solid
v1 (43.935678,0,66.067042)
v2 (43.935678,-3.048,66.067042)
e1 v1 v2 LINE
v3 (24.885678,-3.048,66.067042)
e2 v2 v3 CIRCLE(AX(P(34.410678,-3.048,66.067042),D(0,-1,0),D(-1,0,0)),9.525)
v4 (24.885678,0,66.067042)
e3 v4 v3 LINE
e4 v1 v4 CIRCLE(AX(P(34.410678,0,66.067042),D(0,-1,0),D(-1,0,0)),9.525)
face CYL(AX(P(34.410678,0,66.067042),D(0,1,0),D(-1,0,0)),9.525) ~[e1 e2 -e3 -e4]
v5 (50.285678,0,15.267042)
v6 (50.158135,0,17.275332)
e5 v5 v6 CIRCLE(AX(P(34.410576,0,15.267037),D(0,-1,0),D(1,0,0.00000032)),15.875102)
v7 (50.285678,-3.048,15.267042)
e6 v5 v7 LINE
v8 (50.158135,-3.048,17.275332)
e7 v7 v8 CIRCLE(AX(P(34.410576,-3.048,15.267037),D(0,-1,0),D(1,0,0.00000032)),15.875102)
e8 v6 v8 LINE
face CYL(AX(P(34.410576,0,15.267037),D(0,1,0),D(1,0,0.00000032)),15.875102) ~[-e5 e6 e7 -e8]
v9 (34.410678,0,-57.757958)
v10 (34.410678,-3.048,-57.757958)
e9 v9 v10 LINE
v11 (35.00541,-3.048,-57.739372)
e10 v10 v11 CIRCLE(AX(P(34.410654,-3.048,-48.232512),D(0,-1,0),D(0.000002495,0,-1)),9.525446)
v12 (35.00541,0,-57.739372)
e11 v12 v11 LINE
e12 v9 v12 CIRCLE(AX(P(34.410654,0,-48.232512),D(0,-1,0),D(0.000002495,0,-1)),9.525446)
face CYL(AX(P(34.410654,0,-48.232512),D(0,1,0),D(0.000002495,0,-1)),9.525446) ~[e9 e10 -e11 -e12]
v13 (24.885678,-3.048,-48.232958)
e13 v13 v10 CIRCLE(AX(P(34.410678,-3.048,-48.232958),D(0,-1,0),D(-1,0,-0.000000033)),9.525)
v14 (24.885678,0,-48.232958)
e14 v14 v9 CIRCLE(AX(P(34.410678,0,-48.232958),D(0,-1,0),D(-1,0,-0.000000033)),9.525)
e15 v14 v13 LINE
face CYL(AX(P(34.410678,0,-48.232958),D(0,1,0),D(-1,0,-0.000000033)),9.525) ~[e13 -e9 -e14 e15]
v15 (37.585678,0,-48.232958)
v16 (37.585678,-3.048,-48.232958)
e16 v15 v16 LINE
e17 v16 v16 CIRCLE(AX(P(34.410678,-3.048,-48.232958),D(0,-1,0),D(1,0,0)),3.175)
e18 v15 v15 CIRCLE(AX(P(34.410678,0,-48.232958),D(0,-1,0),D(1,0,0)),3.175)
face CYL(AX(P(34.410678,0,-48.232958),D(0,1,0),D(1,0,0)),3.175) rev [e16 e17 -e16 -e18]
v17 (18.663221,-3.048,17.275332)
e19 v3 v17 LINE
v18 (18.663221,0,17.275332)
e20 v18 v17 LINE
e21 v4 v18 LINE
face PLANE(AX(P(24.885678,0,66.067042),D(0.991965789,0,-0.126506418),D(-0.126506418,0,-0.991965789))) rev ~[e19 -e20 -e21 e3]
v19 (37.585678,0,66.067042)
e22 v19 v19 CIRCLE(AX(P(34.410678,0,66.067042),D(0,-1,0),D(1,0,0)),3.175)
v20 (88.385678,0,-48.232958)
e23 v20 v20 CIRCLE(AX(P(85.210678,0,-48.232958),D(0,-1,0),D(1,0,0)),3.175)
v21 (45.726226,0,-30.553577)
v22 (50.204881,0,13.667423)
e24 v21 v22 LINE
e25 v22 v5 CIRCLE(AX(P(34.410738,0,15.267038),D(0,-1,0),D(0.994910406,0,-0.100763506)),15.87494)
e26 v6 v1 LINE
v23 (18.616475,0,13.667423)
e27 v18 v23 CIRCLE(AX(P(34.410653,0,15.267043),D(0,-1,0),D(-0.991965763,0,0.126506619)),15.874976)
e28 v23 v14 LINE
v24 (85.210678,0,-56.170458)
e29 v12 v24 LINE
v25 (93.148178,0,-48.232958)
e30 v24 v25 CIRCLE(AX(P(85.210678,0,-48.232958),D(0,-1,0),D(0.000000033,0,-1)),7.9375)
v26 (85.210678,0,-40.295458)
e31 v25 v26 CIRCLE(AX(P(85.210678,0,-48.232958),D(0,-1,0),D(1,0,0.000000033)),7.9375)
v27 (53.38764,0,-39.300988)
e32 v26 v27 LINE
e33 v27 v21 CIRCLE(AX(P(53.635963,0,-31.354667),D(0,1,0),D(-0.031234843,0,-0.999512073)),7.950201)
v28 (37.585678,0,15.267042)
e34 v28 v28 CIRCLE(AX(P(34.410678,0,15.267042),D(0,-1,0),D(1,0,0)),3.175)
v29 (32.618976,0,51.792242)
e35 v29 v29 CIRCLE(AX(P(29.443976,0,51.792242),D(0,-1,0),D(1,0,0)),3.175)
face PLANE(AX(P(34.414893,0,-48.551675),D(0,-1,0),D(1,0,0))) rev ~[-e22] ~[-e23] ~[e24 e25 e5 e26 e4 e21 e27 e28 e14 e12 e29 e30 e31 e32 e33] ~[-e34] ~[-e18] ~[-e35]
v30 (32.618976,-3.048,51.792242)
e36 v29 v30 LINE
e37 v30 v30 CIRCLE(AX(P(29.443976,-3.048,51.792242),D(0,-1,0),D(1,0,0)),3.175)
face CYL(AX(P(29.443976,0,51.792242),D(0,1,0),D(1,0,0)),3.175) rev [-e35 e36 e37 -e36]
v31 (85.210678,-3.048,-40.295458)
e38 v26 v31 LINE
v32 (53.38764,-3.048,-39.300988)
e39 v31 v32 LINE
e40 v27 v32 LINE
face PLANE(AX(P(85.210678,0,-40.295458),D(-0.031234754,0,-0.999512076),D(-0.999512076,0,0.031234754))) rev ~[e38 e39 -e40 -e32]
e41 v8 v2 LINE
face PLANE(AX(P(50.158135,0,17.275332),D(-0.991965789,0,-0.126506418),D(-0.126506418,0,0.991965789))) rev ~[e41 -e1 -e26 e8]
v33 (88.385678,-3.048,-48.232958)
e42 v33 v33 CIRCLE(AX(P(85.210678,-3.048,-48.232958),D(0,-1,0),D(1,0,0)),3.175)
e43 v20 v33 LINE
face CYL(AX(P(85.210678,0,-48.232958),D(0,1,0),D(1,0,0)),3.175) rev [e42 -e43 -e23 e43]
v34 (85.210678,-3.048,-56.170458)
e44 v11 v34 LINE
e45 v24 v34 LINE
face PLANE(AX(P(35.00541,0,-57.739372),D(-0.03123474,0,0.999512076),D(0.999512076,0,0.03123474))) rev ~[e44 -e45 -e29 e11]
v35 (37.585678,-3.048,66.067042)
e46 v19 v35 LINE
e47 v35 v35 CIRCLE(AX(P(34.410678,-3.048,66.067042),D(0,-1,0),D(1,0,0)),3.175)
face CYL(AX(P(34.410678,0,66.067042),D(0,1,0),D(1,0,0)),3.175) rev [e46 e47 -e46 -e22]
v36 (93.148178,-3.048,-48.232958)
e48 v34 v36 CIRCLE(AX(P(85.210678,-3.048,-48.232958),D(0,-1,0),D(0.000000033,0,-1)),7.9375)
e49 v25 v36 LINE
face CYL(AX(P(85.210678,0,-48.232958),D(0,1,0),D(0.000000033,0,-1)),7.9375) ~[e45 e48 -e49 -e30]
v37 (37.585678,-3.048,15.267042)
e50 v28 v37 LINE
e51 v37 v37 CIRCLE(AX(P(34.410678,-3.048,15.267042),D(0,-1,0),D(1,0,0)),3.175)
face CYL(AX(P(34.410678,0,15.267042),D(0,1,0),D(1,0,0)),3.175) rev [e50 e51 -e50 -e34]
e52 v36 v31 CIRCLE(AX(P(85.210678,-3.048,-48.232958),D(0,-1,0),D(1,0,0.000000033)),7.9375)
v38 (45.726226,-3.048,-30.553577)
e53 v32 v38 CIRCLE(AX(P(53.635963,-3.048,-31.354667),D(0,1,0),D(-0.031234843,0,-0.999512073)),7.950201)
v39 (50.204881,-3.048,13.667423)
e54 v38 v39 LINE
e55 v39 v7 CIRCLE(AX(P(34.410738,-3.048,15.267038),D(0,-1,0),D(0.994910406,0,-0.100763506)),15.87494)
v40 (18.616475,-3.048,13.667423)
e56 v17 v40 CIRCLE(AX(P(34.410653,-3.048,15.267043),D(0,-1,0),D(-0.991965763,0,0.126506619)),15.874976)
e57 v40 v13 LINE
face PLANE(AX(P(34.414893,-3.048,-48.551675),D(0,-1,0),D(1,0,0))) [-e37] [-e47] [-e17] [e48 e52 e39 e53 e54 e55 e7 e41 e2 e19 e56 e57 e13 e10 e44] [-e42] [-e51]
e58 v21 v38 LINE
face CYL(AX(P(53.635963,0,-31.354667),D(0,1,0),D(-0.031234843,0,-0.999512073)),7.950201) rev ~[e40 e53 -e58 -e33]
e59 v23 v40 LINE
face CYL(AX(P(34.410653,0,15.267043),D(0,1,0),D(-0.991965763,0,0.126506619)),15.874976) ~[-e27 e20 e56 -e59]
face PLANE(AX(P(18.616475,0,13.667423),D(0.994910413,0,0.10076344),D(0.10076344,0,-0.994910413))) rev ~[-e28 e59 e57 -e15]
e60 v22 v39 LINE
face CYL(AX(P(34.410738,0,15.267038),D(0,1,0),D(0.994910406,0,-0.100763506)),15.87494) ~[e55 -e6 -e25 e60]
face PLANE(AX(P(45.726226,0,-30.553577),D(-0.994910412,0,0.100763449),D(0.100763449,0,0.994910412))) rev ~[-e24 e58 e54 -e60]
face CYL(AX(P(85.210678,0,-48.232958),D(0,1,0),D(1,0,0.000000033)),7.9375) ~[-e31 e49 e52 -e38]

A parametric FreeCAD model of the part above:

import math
import FreeCAD as App
import Part
import Sketcher

V = App.Vector
Q = App.Units.Quantity

doc = App.newDocument("Part")
body = doc.addObject("PartDesign::Body", "Body")

sketch1 = body.newObject("Sketcher::SketchObject", "Sketch")
sketch1.AttachmentSupport = (doc.getObject("XZ_Plane"), [""])
sketch1.MapMode = "FlatFace"
sketch1.addGeometry(Part.LineSegment(V(35.00541, -57.739372, 0), V(85.210678, -56.170458, 0)), False)
sketch1.addGeometry(Part.ArcOfCircle(Part.Circle(V(85.210678, -48.232958, 0), V(0, 0, 1), 7.9375), math.radians(-89.999998), math.radians(-0.000002)), False)
sketch1.addGeometry(Part.ArcOfCircle(Part.Circle(V(85.210678, -48.232958, 0), V(0, 0, 1), 7.9375), math.radians(0.000002), math.radians(89.999998)), False)
sketch1.addGeometry(Part.LineSegment(V(85.210678, -40.295458, 0), V(53.38764, -39.300988, 0)), False)
sketch1.addGeometry(Part.ArcOfCircle(Part.Circle(V(53.635963, -31.354667, 0), V(0, 0, 1), 7.950201), math.radians(174.216865), math.radians(268.210084)), False)
sketch1.addGeometry(Part.LineSegment(V(45.726226, -30.553577, 0), V(50.204881, 13.667423, 0)), False)
sketch1.addGeometry(Part.ArcOfCircle(Part.Circle(V(34.410738, 15.267038, 0), V(0, 0, 1), 15.87494), math.radians(-5.783138), math.radians(0.000016)), False)
sketch1.addGeometry(Part.ArcOfCircle(Part.Circle(V(34.410576, 15.267037, 0), V(0, 0, 1), 15.875102), math.radians(0.000018), math.radians(7.267731)), False)
sketch1.addGeometry(Part.LineSegment(V(50.158135, 17.275332, 0), V(43.935678, 66.067042, 0)), False)
sketch1.addGeometry(Part.ArcOfCircle(Part.Circle(V(34.410678, 66.067042, 0), V(0, 0, 1), 9.525), math.radians(0), math.radians(180)), False)
sketch1.addGeometry(Part.LineSegment(V(24.885678, 66.067042, 0), V(18.663221, 17.275332, 0)), False)
sketch1.addGeometry(Part.ArcOfCircle(Part.Circle(V(34.410653, 15.267043, 0), V(0, 0, 1), 15.874976), math.radians(172.732231), math.radians(185.783143)), False)
sketch1.addGeometry(Part.LineSegment(V(18.616475, 13.667423, 0), V(24.885678, -48.232958, 0)), False)
sketch1.addGeometry(Part.ArcOfCircle(Part.Circle(V(34.410678, -48.232958, 0), V(0, 0, 1), 9.525), math.radians(-179.999998), math.radians(-90.000002)), False)
sketch1.addGeometry(Part.ArcOfCircle(Part.Circle(V(34.410654, -48.232512, 0), V(0, 0, 1), 9.525446), math.radians(-89.999857), math.radians(-86.420201)), False)
sketch1.addGeometry(Part.Circle(V(34.410678, -48.232958, 0), V(0, 0, 1), 3.175), False)
sketch1.addGeometry(Part.Circle(V(85.210678, -48.232958, 0), V(0, 0, 1), 3.175), False)
sketch1.addGeometry(Part.Circle(V(34.410678, 15.267042, 0), V(0, 0, 1), 3.175), False)
sketch1.addGeometry(Part.Circle(V(29.443976, 51.792242, 0), V(0, 0, 1), 3.175), False)
sketch1.addGeometry(Part.Circle(V(34.410678, 66.067042, 0), V(0, 0, 1), 3.175), False)
sketch1.addConstraint(Sketcher.Constraint("Coincident", 0, 2, 1, 1))
sketch1.addConstraint(Sketcher.Constraint("Coincident", 1, 2, 2, 1))
sketch1.addConstraint(Sketcher.Constraint("Coincident", 2, 2, 3, 1))
sketch1.addConstraint(Sketcher.Constraint("Coincident", 3, 2, 4, 2))
sketch1.addConstraint(Sketcher.Constraint("Coincident", 4, 1, 5, 1))
sketch1.addConstraint(Sketcher.Constraint("Coincident", 5, 2, 6, 1))
sketch1.addConstraint(Sketcher.Constraint("Coincident", 6, 2, 7, 1))
sketch1.addConstraint(Sketcher.Constraint("Coincident", 7, 2, 8, 1))
sketch1.addConstraint(Sketcher.Constraint("Coincident", 8, 2, 9, 1))
sketch1.addConstraint(Sketcher.Constraint("Coincident", 9, 2, 10, 1))
sketch1.addConstraint(Sketcher.Constraint("Coincident", 10, 2, 11, 1))
sketch1.addConstraint(Sketcher.Constraint("Coincident", 11, 2, 12, 1))
sketch1.addConstraint(Sketcher.Constraint("Coincident", 12, 2, 13, 1))
sketch1.addConstraint(Sketcher.Constraint("Coincident", 13, 2, 14, 1))
sketch1.addConstraint(Sketcher.Constraint("Coincident", 14, 2, 0, 1))
sketch1.addConstraint(Sketcher.Constraint("Coincident", 2, 3, 1, 3))
sketch1.addConstraint(Sketcher.Constraint("Coincident", 15, 3, 13, 3))
sketch1.addConstraint(Sketcher.Constraint("Coincident", 16, 3, 1, 3))
sketch1.addConstraint(Sketcher.Constraint("Coincident", 19, 3, 9, 3))
sketch1.addConstraint(Sketcher.Constraint("Diameter", 15, Q("0.25 in")))
sketch1.addConstraint(Sketcher.Constraint("Diameter", 16, Q("0.25 in")))
sketch1.addConstraint(Sketcher.Constraint("Diameter", 17, Q("0.25 in")))
sketch1.addConstraint(Sketcher.Constraint("Diameter", 18, Q("0.25 in")))
sketch1.addConstraint(Sketcher.Constraint("Diameter", 19, Q("0.25 in")))
sketch1.addConstraint(Sketcher.Constraint("Radius", 1, Q("0.3125 in")))
sketch1.addConstraint(Sketcher.Constraint("Radius", 4, Q("0.313 in")))
sketch1.addConstraint(Sketcher.Constraint("Radius", 9, Q("0.375 in")))
sketch1.addConstraint(Sketcher.Constraint("Radius", 13, Q("0.375 in")))
sketch1.addConstraint(Sketcher.Constraint("DistanceY", 6, 3, 9, 3, Q("2.0000002 in")))
sketch1.addConstraint(Sketcher.Constraint("DistanceX", 9, 3, 1, 3, Q("2 in")))
sketch1.addConstraint(Sketcher.Constraint("DistanceY", 11, 3, 9, 3, Q("2 in")))
sketch1.addConstraint(Sketcher.Constraint("DistanceX", 13, 3, 1, 3, Q("2 in")))
sketch1.addConstraint(Sketcher.Constraint("DistanceY", 17, 3, 9, 3, Q("2 in")))
sketch1.addConstraint(Sketcher.Constraint("DistanceX", 13, 3, 0, 2, Q("2 in")))
sketch1.addConstraint(Sketcher.Constraint("DistanceY", 6, 2, 8, 2, Q("2 in")))
sketch1.addConstraint(Sketcher.Constraint("DistanceY", 1, 3, 6, 3, Q("2.4999998 in")))
sketch1.addConstraint(Sketcher.Constraint("DistanceY", 2, 3, 7, 3, Q("2.4999998 in")))
sketch1.addConstraint(Sketcher.Constraint("DistanceY", 13, 3, 6, 3, Q("2.4999998 in")))
sketch1.addConstraint(Sketcher.Constraint("DistanceX", 8, 2, 6, 2, Q("0.25 in")))
sketch1.addConstraint(Sketcher.Constraint("Radius", 6, Q("15.87494 mm")))
sketch1.addConstraint(Sketcher.Constraint("DistanceY", 18, 3, 9, 3, Q("0.562 in")))
sketch1.addConstraint(Sketcher.Constraint("DistanceY", 0, 2, 1, 2, Q("0.3125 in")))
sketch1.addConstraint(Sketcher.Constraint("DistanceX", 2, 2, 1, 2, Q("0.3125 in")))
sketch1.addConstraint(Sketcher.Constraint("DistanceX", 17, 3, 6, 2, Q("0.625 in")))
sketch1.addConstraint(Sketcher.Constraint("DistanceY", 18, 3, 8, 2, Q("0.562 in")))
sketch1.addConstraint(Sketcher.Constraint("DistanceY", 18, 3, 9, 2, Q("0.562 in")))
sketch1.addConstraint(Sketcher.Constraint("DistanceX", 12, 2, 13, 2, Q("0.375 in")))
sketch1.addConstraint(Sketcher.Constraint("DistanceY", 13, 2, 12, 2, Q("0.375 in")))
sketch1.addConstraint(Sketcher.Constraint("Radius", 7, Q("15.875102 mm")))
sketch1.addConstraint(Sketcher.Constraint("Radius", 11, Q("15.874976 mm")))
sketch1.addConstraint(Sketcher.Constraint("Radius", 14, Q("9.525446 mm")))
sketch1.addConstraint(Sketcher.Constraint("DistanceY", 4, 3, 6, 3, Q("1.8355002 in")))
sketch1.addConstraint(Sketcher.Constraint("DistanceX", 18, 3, 9, 3, Q("4.966702 mm")))
sketch1.addConstraint(Sketcher.Constraint("DistanceX", 11, 2, 7, 3, Q("15.794101 mm")))
sketch1.addConstraint(Sketcher.Constraint("Distance", 5, Q("44.447218 mm")))
sketch1.addConstraint(Sketcher.Constraint("Distance", 12, Q("62.21704 mm")))
sketch1.addConstraint(Sketcher.Constraint("DistanceY", 2, 3, -1, 1, Q("48.232958 mm")))
sketch1.addConstraint(Sketcher.Constraint("DistanceX", -1, 1, 6, 3, Q("34.410738 mm")))
sketch1.addConstraint(Sketcher.Constraint("DistanceX", -1, 1, 3, 2, Q("53.38764 mm")))
sketch1.addConstraint(Sketcher.Constraint("DistanceX", -1, 1, 5, 2, Q("50.204881 mm")))
sketch1.addConstraint(Sketcher.Constraint("DistanceY", -1, 1, 7, 2, Q("17.275332 mm")))
sketch1.addConstraint(Sketcher.Constraint("DistanceX", -1, 1, 10, 2, Q("18.663221 mm")))
sketch1.addConstraint(Sketcher.Constraint("DistanceX", -1, 1, 14, 2, Q("35.00541 mm")))
sketch1.addConstraint(Sketcher.Constraint("DistanceY", 14, 2, -1, 1, Q("57.739372 mm")))
sketch1.addConstraint(Sketcher.Constraint("DistanceX", 11, 3, 4, 3, Q("19.22531 mm")))
pad1 = body.newObject("PartDesign::Pad", "Pad")
pad1.Profile = sketch1
pad1.Length = Q("0.12 in")

doc.recompute()
